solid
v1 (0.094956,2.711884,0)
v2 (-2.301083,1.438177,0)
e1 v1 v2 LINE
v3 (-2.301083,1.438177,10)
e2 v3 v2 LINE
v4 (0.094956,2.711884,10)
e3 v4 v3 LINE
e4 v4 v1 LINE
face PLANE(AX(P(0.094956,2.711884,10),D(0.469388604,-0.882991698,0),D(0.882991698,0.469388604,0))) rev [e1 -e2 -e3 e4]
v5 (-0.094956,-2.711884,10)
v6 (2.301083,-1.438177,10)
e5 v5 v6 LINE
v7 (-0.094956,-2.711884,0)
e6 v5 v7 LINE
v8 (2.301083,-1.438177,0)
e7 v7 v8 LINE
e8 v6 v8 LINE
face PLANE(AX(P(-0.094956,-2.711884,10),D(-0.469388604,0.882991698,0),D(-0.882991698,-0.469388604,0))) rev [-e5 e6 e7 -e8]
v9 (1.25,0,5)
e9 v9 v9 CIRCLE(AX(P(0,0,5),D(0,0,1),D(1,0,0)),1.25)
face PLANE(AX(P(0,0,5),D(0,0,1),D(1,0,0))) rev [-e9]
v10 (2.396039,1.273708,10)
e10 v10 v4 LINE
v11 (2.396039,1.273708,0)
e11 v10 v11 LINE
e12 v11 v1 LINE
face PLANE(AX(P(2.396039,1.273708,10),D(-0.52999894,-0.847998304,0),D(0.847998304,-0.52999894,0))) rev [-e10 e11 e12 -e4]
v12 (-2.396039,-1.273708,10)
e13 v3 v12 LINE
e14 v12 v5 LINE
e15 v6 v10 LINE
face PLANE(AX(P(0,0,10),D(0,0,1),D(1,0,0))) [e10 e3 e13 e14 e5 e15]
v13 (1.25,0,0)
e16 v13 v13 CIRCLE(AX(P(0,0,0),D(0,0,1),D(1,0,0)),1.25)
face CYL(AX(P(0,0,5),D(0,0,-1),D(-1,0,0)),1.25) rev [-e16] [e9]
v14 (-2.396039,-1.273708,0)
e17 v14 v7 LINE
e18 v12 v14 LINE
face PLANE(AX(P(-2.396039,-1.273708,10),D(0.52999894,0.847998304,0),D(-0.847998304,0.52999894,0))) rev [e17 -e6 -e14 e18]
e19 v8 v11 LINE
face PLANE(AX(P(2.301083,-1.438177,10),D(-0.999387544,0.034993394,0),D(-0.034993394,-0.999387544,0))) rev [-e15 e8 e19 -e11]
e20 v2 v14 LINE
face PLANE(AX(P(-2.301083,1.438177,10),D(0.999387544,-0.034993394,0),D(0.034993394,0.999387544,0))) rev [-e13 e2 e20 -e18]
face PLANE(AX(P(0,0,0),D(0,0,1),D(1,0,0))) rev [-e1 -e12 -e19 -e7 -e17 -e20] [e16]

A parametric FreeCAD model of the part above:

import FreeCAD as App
import Part
import Sketcher
from FreeCAD import Vector
Q = App.Units.Quantity


def add_polygon(sketch, points):
    """Adds a closed chain of lines whose ends are joined by coincident constraints."""
    first, n = sketch.GeometryCount, len(points)
    for a, b in zip(points, points[1:] + points[:1]):
        sketch.addGeometry(Part.LineSegment(App.Vector(*a, 0), App.Vector(*b, 0)), False)
    for i in range(n):
        sketch.addConstraint(Sketcher.Constraint("Coincident", first + i, 2, first + (i + 1) % n, 1))

doc = App.newDocument("Part")
body = doc.addObject("PartDesign::Body", "Body")

# Sketch on XY plane
sketch1 = body.newObject("Sketcher::SketchObject", "Sketch")
sketch1.AttachmentSupport = (doc.getObject("XY_Plane"), [""])
sketch1.MapMode = "FlatFace"
add_polygon(sketch1, [(2.3, -1.4), (2.4, 1.3), (0.1, 2.7), (-2.3, 1.4), (-2.4, -1.3), (-0.1, -2.7)])  # lines 0-5
sketch1.addConstraint([
    Sketcher.Constraint("Symmetric", 0, 2, 3, 2, -1, 1),
    Sketcher.Constraint("Symmetric", 1, 2, 4, 2, -1, 1),
    Sketcher.Constraint("Symmetric", 2, 2, 5, 2, -1, 1),
    Sketcher.Constraint("Equal", 0, 1),
    Sketcher.Constraint("Equal", 1, 2),
    Sketcher.Constraint("DistanceX", -1, 1, 0, 2, Q("2.396039 mm")),
    Sketcher.Constraint("DistanceX", 2, 2, 1, 2, Q("2.396039 mm")),
    Sketcher.Constraint("DistanceX", 2, 2, 0, 2, Q("4.697121 mm")),
    Sketcher.Constraint("DistanceY", 0, 2, 2, 2, Q("0.164469 mm")),
])
pad1 = body.newObject("PartDesign::Pad", "Pad")
pad1.Profile = sketch1
pad1.Length = 10

# Sketch on XY plane
sketch2 = body.newObject("Sketcher::SketchObject", "Sketch001")
sketch2.AttachmentSupport = (doc.getObject("XY_Plane"), [""])
sketch2.MapMode = "FlatFace"
sketch2.addGeometry(Part.Circle(Vector(0, 0, 0), Vector(0, 0, 1), 1.2), False)
sketch2.addConstraint([
    Sketcher.Constraint("Coincident", 0, 3, -1, 1),
    Sketcher.Constraint("Diameter", 0, Q("2.5 mm")),
])
pocket1 = body.newObject("PartDesign::Pocket", "Pocket")
pocket1.Profile = sketch2
pocket1.Length = 5
pocket1.Reversed = True

doc.recompute()
